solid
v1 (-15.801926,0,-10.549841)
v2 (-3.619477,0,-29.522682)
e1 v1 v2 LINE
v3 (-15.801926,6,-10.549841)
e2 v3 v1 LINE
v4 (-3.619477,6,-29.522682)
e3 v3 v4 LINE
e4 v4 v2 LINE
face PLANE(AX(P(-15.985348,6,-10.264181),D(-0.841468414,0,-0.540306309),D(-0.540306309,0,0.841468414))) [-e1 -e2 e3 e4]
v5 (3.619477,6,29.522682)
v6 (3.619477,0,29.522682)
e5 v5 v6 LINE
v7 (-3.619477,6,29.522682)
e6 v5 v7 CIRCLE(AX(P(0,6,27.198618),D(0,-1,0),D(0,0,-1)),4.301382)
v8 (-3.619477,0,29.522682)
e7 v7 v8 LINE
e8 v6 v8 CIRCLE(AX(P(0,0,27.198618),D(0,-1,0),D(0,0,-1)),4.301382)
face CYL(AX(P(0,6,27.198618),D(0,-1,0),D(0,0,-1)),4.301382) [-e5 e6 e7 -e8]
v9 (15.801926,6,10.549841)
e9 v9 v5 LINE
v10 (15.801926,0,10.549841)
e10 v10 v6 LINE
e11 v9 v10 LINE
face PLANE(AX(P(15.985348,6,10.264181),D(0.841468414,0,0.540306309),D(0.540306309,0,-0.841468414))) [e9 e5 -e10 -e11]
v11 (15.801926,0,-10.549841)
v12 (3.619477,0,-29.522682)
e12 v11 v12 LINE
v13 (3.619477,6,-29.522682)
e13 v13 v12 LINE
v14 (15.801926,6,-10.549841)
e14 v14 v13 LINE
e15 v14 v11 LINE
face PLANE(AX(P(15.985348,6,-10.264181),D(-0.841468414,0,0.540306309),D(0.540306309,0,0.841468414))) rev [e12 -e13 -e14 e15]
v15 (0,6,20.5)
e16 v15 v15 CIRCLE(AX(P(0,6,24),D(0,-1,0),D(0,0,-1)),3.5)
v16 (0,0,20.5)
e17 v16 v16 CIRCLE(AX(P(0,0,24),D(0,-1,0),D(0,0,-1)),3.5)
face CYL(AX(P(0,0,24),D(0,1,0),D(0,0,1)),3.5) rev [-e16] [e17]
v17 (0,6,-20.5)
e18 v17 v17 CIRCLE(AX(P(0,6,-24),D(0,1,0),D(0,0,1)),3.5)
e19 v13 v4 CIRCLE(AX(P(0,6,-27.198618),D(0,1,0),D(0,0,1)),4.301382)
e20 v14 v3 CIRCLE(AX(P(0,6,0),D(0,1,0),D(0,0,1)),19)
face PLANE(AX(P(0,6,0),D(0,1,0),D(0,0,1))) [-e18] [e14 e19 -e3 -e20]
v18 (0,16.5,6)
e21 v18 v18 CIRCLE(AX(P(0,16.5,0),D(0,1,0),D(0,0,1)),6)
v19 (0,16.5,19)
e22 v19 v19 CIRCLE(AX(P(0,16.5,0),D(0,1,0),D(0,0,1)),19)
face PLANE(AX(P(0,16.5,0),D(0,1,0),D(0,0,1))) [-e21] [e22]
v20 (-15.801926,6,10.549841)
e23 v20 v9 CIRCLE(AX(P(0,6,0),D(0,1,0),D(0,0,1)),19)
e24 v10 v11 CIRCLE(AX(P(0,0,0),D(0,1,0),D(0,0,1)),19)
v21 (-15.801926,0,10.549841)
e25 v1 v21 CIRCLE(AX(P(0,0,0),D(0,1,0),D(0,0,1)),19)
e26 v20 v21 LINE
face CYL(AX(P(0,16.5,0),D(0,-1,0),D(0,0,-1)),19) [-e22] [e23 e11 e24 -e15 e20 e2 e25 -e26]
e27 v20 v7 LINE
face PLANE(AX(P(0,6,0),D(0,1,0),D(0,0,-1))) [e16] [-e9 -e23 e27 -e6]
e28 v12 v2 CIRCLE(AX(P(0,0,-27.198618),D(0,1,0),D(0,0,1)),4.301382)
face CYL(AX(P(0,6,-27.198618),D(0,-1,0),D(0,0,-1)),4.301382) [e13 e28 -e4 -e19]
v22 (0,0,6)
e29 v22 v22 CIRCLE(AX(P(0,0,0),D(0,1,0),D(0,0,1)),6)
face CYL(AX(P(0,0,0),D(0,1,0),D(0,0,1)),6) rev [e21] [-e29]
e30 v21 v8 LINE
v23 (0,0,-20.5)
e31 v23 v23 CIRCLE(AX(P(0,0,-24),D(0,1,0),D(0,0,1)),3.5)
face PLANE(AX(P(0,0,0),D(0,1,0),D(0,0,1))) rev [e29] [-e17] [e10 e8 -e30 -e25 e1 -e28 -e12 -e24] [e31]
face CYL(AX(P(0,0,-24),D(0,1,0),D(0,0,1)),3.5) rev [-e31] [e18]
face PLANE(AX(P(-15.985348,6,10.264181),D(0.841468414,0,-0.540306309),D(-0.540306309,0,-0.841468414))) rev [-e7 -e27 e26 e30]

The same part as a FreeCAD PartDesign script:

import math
import FreeCAD as App
import Part
import Sketcher
Q = App.Units.Quantity

doc = App.newDocument("Part")
body = doc.addObject("PartDesign::Body", "Body")

# Sketch on XZ plane
sketch1 = body.newObject("Sketcher::SketchObject", "Sketch")
sketch1.AttachmentSupport = (doc.getObject("XZ_Plane"), [""])
sketch1.MapMode = "FlatFace"
sketch1.addGeometry(Part.Circle(App.Vector(0, 0, 0), App.Vector(0, 0, 1), 19), False)
sketch1.addConstraint([
    Sketcher.Constraint("Coincident", 0, 3, -1, 1),
    Sketcher.Constraint("Diameter", 0, Q("38 mm")),
])
pad1 = body.newObject("PartDesign::Pad", "Pad")
pad1.Profile = sketch1
pad1.Length = 16.5
pad1.Reversed = True

# Sketch on XZ plane
sketch2 = body.newObject("Sketcher::SketchObject", "Sketch001")
sketch2.AttachmentSupport = (doc.getObject("XZ_Plane"), [""])
sketch2.MapMode = "FlatFace"
sketch2.addGeometry([
    Part.ArcOfCircle(Part.Circle(App.Vector(0, -27.2, 0), App.Vector(0, 0, 1), 4.3), math.radians(-147), math.radians(-90)),  # 0
    Part.LineSegment(App.Vector(-3.6, -29.5, 0), App.Vector(-15.8, -10.5, 0)),  # 1
    Part.LineSegment(App.Vector(-15.8, -10.5, 0), App.Vector(15.8, -10.5, 0)),  # 2
    Part.LineSegment(App.Vector(15.8, -10.5, 0), App.Vector(3.6, -29.5, 0)),  # 3
    Part.ArcOfCircle(Part.Circle(App.Vector(0, -27.2, 0), App.Vector(0, 0, 1), 4.3), math.radians(-90), math.radians(-33)),  # 4
], False)
sketch2.addConstraint([
    Sketcher.Constraint("Tangent", 0, 1, 1, 1),
    Sketcher.Constraint("Coincident", 1, 2, 2, 1),
    Sketcher.Constraint("Coincident", 2, 2, 3, 1),
    Sketcher.Constraint("Tangent", 3, 2, 4, 2),
    Sketcher.Constraint("Tangent", 4, 1, 0, 2),
    Sketcher.Constraint("Horizontal", 2),
    Sketcher.Constraint("Equal", 0, 4),
    Sketcher.Constraint("Symmetric", 0, 1, 3, 2, -2),
    Sketcher.Constraint("PointOnObject", 4, 1, -2),
    Sketcher.Constraint("DistanceY", 4, 1, -1, 1, Q("31.5 mm")),
    Sketcher.Constraint("Radius", 0, Q("4.301382 mm")),
    Sketcher.Constraint("Distance", 1, Q("22.5473 mm")),
    Sketcher.Constraint("DistanceX", 2, 1, 2, 2, Q("31.603852 mm")),
])
pad2 = body.newObject("PartDesign::Pad", "Pad001")
pad2.Profile = sketch2
pad2.Length = 6
pad2.Reversed = True

# Sketch on XZ plane
sketch3 = body.newObject("Sketcher::SketchObject", "Sketch002")
sketch3.AttachmentSupport = (doc.getObject("XZ_Plane"), [""])
sketch3.MapMode = "FlatFace"
sketch3.AttachmentOffset = App.Placement(App.Vector(0, 0, -16.5), App.Rotation())
sketch3.addGeometry(Part.Circle(App.Vector(0, 0, 0), App.Vector(0, 0, 1), 6), False)
sketch3.addConstraint([
    Sketcher.Constraint("Coincident", 0, 3, -1, 1),
    Sketcher.Constraint("Diameter", 0, Q("12 mm")),
])
pocket1 = body.newObject("PartDesign::Pocket", "Pocket")
pocket1.Profile = sketch3
pocket1.Type = "ThroughAll"
pocket1.Reversed = True

# Sketch on XZ plane
sketch4 = body.newObject("Sketcher::SketchObject", "Sketch003")
sketch4.AttachmentSupport = (doc.getObject("XZ_Plane"), [""])
sketch4.MapMode = "FlatFace"
sketch4.AttachmentOffset = App.Placement(App.Vector(0, 0, -6), App.Rotation())
sketch4.addGeometry(Part.Circle(App.Vector(0, -24, 0), App.Vector(0, 0, 1), 3.5), False)
sketch4.addConstraint([
    Sketcher.Constraint("PointOnObject", 0, 3, -2),
    Sketcher.Constraint("Diameter", 0, Q("7 mm")),
    Sketcher.Constraint("DistanceY", 0, 3, -1, 1, Q("24 mm")),
])
pocket2 = body.newObject("PartDesign::Pocket", "Pocket001")
pocket2.Profile = sketch4
pocket2.Type = "ThroughAll"
pocket2.Reversed = True
doc.recompute()

mirrored = body.newObject("PartDesign::Mirrored", "Mirrored")
mirrored.Originals = [pad2, pocket2]
mirrored.MirrorPlane = (doc.getObject("XY_Plane"), [""])
body.Tip = mirrored

doc.recompute()
